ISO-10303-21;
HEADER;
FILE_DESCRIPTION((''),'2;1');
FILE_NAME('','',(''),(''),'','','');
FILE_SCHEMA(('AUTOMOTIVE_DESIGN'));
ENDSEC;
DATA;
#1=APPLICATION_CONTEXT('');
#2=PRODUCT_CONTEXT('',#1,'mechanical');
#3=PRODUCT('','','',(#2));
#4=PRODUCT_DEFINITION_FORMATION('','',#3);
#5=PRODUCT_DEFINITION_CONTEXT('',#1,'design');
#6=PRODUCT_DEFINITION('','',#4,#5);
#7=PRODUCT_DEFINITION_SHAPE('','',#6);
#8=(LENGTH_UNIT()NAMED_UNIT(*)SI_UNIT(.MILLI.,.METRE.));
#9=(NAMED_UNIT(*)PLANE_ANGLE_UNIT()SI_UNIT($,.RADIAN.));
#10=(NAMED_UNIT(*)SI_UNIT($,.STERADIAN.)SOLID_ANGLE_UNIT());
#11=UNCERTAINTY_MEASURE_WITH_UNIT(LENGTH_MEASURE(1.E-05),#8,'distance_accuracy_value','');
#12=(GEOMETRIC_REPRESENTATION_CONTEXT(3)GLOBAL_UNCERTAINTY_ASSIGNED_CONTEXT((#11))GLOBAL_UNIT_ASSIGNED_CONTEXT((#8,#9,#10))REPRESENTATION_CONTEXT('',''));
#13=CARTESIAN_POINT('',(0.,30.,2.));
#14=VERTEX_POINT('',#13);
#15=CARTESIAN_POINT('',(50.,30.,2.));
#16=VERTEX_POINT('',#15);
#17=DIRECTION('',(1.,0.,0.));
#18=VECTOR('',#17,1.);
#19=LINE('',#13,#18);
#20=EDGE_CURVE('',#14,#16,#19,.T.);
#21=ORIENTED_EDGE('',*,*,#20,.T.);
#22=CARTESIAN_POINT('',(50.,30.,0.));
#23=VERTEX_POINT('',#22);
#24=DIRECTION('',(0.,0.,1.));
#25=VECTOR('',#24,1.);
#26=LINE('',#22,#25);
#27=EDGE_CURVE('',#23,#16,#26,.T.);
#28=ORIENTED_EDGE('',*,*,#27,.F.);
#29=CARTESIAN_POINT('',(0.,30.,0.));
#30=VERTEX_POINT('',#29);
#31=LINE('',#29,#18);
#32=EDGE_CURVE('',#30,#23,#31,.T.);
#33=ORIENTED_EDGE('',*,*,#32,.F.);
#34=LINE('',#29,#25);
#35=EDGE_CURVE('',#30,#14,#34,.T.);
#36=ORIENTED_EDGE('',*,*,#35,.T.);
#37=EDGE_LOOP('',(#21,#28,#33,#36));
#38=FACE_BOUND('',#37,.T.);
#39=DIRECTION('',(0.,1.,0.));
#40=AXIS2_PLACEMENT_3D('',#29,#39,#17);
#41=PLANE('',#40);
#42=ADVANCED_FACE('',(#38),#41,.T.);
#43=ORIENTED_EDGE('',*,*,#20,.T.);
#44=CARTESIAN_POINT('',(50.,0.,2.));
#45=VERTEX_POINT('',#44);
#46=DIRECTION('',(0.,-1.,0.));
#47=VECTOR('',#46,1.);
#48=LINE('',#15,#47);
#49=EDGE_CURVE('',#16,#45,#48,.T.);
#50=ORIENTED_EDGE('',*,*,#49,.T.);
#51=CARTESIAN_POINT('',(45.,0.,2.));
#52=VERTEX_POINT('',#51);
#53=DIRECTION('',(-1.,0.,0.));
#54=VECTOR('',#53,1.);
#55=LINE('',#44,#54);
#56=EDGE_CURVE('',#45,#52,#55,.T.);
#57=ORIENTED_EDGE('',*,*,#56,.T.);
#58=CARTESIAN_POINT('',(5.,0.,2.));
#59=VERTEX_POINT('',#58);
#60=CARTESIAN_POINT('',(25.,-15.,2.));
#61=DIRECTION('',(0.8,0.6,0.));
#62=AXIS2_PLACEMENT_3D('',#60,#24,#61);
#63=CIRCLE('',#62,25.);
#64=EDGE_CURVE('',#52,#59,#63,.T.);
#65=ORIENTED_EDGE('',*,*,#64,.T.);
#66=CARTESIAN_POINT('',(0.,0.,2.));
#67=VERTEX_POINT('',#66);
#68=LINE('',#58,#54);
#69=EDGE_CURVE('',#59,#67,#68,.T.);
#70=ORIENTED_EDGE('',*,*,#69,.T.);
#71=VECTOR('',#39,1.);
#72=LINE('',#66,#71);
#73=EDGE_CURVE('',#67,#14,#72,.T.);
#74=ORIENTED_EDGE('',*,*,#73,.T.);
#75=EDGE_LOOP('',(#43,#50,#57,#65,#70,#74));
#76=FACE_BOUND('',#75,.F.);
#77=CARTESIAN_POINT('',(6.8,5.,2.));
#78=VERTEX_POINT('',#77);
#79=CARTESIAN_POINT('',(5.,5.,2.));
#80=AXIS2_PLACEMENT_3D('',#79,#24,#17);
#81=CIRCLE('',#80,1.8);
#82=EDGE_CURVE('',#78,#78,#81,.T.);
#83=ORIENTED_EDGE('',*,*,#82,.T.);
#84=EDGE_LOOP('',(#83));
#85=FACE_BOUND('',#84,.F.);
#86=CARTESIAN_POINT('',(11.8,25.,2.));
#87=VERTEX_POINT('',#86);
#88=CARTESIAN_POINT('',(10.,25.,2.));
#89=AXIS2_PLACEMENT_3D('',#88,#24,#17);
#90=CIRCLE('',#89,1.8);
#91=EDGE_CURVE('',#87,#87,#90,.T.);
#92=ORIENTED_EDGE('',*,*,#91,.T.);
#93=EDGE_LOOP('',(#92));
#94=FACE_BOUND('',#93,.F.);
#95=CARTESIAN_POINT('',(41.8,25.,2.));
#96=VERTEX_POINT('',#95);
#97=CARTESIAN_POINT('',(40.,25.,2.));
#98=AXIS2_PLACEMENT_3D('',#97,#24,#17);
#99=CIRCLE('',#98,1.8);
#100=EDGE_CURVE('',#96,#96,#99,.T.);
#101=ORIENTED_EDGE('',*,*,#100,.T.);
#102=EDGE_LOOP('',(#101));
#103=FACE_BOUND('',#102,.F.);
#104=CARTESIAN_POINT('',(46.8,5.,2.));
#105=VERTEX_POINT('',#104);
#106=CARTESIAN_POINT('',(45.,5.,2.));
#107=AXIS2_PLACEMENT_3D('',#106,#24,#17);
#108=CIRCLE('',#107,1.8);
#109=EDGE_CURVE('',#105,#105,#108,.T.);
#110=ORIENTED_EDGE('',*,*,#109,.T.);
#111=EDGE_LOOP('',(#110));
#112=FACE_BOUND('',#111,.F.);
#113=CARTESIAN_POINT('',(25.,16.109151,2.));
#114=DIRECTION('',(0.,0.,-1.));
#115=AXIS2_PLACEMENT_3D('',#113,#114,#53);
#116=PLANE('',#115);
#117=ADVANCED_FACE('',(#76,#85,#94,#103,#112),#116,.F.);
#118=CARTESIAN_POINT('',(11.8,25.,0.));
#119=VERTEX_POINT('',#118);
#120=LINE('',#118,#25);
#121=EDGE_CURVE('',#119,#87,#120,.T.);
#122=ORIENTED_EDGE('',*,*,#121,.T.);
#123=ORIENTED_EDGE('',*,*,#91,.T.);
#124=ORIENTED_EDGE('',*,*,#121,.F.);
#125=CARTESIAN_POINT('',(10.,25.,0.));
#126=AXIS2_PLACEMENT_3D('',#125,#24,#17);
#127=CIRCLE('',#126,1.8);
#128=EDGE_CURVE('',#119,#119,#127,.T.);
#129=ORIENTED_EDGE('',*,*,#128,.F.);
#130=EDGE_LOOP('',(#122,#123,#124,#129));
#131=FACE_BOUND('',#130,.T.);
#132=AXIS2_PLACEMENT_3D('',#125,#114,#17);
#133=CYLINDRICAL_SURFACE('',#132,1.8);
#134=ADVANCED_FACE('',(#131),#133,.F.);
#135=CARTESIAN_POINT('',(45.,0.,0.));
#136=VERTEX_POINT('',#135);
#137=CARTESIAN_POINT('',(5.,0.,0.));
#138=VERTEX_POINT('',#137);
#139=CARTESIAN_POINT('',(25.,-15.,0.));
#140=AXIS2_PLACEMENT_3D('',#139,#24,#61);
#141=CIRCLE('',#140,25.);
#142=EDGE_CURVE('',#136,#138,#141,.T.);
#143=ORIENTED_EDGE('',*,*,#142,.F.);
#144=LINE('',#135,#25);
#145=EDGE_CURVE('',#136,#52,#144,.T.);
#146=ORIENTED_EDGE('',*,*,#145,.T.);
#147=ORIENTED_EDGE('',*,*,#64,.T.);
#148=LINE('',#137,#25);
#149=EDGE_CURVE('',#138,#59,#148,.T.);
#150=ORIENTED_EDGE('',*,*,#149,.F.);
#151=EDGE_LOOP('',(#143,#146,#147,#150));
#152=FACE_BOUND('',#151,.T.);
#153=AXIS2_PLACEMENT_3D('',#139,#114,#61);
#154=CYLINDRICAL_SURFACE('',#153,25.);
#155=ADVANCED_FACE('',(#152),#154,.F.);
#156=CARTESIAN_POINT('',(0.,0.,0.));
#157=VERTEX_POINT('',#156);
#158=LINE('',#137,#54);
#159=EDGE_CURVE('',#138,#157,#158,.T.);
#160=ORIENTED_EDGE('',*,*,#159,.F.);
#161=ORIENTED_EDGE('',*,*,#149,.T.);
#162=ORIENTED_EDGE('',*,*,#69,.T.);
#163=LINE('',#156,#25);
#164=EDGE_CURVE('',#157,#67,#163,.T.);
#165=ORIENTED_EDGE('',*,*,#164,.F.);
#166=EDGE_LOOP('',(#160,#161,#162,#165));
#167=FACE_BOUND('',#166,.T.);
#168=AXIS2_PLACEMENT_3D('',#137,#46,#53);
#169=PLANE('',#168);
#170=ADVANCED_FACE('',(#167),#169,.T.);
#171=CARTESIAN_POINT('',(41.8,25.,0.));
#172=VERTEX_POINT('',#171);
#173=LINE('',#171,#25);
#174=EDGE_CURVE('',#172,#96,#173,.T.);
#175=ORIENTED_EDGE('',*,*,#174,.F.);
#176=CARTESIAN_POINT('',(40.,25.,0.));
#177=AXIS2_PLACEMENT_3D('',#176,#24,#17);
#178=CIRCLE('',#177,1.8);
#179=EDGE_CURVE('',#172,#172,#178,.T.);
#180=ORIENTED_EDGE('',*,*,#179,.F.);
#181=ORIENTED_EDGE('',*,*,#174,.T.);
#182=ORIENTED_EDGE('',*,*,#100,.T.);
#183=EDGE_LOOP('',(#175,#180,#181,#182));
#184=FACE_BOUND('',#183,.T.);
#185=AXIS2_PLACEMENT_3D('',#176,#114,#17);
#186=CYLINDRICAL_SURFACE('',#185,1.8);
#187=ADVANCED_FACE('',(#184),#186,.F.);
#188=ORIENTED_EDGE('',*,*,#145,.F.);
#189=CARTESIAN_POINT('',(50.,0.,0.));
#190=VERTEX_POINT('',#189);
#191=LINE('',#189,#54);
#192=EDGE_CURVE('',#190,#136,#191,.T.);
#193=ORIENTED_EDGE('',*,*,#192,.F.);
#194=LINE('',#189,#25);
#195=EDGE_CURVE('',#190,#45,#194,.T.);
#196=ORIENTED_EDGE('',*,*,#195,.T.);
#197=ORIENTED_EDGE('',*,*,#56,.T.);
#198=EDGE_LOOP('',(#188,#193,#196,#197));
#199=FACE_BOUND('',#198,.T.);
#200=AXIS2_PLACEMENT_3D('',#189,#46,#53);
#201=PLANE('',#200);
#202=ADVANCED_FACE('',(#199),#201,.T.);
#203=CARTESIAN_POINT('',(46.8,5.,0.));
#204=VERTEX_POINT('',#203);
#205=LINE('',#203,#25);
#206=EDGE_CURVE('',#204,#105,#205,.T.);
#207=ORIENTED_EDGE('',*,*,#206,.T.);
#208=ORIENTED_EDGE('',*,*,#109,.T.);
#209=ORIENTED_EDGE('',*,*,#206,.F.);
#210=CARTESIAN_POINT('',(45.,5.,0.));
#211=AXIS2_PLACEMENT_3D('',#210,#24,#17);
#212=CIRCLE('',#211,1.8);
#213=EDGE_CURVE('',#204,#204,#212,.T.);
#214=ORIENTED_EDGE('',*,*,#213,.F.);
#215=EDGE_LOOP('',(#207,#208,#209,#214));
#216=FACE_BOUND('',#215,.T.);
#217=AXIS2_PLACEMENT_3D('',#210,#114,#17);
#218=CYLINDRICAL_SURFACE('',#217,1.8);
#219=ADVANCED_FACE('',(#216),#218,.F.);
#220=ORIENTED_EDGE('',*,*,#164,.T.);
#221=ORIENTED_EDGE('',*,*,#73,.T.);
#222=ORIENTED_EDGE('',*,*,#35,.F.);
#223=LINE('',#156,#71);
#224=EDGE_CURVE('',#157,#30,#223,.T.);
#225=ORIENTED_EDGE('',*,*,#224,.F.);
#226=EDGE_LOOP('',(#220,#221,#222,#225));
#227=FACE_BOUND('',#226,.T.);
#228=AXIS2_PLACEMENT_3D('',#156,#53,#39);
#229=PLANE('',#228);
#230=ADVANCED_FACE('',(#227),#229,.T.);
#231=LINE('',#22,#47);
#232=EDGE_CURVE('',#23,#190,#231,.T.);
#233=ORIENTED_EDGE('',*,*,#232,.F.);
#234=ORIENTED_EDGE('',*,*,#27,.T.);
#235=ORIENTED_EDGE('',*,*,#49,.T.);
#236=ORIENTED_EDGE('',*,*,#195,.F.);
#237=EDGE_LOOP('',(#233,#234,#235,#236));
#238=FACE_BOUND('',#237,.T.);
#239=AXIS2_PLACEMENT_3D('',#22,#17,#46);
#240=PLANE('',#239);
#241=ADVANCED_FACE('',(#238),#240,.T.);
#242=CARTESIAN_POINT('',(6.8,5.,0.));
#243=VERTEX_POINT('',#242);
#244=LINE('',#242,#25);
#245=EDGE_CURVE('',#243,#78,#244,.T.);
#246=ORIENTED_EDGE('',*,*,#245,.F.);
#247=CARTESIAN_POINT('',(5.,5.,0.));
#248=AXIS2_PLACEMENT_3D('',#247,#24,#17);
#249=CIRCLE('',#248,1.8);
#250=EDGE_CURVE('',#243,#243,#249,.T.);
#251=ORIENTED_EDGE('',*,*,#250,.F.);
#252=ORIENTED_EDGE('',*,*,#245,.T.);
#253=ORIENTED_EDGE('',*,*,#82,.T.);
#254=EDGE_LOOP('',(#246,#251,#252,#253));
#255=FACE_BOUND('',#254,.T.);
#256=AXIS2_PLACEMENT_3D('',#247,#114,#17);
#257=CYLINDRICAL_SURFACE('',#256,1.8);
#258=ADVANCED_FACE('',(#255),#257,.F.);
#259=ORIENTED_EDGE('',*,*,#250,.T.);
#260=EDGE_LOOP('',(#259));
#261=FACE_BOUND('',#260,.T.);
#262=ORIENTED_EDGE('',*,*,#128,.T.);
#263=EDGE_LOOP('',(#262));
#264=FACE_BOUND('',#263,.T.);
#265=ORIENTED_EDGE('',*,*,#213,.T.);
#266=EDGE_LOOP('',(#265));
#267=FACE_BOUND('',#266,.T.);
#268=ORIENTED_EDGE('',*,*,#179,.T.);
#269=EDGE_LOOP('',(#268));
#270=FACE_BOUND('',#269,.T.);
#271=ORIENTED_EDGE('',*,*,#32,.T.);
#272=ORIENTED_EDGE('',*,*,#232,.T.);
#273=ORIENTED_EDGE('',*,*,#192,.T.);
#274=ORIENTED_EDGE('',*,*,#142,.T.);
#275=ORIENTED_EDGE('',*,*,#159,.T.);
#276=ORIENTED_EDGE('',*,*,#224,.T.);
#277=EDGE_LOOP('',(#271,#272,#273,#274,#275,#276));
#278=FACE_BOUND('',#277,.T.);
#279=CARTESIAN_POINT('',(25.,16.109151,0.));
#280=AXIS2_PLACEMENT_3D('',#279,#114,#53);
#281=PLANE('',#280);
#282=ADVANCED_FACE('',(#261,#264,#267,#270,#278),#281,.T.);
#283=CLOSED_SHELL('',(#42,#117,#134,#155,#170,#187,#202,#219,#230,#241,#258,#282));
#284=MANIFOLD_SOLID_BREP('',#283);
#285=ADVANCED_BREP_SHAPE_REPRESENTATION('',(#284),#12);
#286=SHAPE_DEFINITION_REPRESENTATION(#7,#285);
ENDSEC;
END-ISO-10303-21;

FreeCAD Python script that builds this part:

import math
import FreeCAD as App
import Part
import Sketcher

V = App.Vector

doc = App.newDocument("Part")
params = doc.addObject("Spreadsheet::Sheet", "Params")
for row, (alias, value) in enumerate([
    ("sketch1_radius", "25 mm"),
    ("sketch1_diameter", "3.6 mm"),
    ("sketch1_width", "5 mm"),
    ("sketch1_width2", "50 mm"),
    ("sketch1_height", "30 mm"),
    ("pad1_length", "2 mm"),
], start=1):
    params.set(f"A{row}", alias)
    params.set(f"B{row}", "=" + value)
    params.setAlias(f"B{row}", alias)

body = doc.addObject("PartDesign::Body", "Body")

# Sketch on XY plane
sketch1 = doc.addObject("Sketcher::SketchObject", "Sketch")
body.addObject(sketch1)
sketch1.AttachmentSupport = (doc.XY_Plane, [""])
sketch1.MapMode = "FlatFace"
sketch1.addGeometry([
    Part.LineSegment(V(0, 0, 0), V(5, 0, 0)),  # 0
    Part.ArcOfCircle(Part.Circle(V(25, -15, 0), V(0, 0, 1), 25), math.radians(37), math.radians(143)),  # 1
    Part.LineSegment(V(45, 0, 0), V(50, 0, 0)),  # 2
    Part.LineSegment(V(50, 0, 0), V(50, 30, 0)),  # 3
    Part.LineSegment(V(50, 30, 0), V(0, 30, 0)),  # 4
    Part.LineSegment(V(0, 30, 0), V(0, 0, 0)),  # 5
    Part.Circle(V(45, 5, 0), V(0, 0, 1), 1.8),  # 6
    Part.Circle(V(5, 5, 0), V(0, 0, 1), 1.8),  # 7
    Part.Circle(V(40, 25, 0), V(0, 0, 1), 1.8),  # 8
    Part.Circle(V(10, 25, 0), V(0, 0, 1), 1.8),  # 9
], False)
sketch1.addConstraint([
    Sketcher.Constraint("Coincident", 0, 2, 1, 2),
    Sketcher.Constraint("Coincident", 1, 1, 2, 1),
    Sketcher.Constraint("Coincident", 2, 2, 3, 1),
    Sketcher.Constraint("Coincident", 3, 2, 4, 1),
    Sketcher.Constraint("Coincident", 4, 2, 5, 1),
    Sketcher.Constraint("Coincident", 5, 2, 0, 1),
    Sketcher.Constraint("Horizontal", 0),
    Sketcher.Constraint("Horizontal", 2),
    Sketcher.Constraint("Vertical", 3),
    Sketcher.Constraint("Horizontal", 4),
    Sketcher.Constraint("Vertical", 5),
    Sketcher.Constraint("Coincident", 5, 2, -1, 1),
    Sketcher.Constraint("Equal", 6, 7),
    Sketcher.Constraint("Equal", 7, 8),
    Sketcher.Constraint("Equal", 8, 9),
    Sketcher.Constraint("PointOnObject", 1, 1, -1),
    Sketcher.Constraint("Horizontal", 6, 3, 7, 3),
    Sketcher.Constraint("Horizontal", 8, 3, 9, 3),
    Sketcher.Constraint("Vertical", 7, 3, 0, 2),
    Sketcher.Constraint("Vertical", 6, 3, 1, 1),
    Sketcher.Constraint("Equal", 0, 2),
    Sketcher.Constraint("Radius", 1, 25.0),
    Sketcher.Constraint("Diameter", 6, 3.6),
    Sketcher.Constraint("DistanceX", 0, 1, 0, 2, 5.0),
    Sketcher.Constraint("DistanceX", 4, 2, 4, 1, 50.0),
    Sketcher.Constraint("DistanceY", 3, 1, 3, 2, 30.0),
    Sketcher.Constraint("DistanceY", -1, 1, 6, 3, 5.0),
    Sketcher.Constraint("DistanceX", -1, 1, 8, 3, 40.0),
    Sketcher.Constraint("DistanceY", -1, 1, 8, 3, 25.0),
    Sketcher.Constraint("DistanceX", -1, 1, 9, 3, 10.0),
])
sketch1.setExpression("Constraints[21]", "Params.sketch1_radius")
sketch1.setExpression("Constraints[22]", "Params.sketch1_diameter")
sketch1.setExpression("Constraints[23]", "Params.sketch1_width")
sketch1.setExpression("Constraints[24]", "Params.sketch1_width2")
sketch1.setExpression("Constraints[25]", "Params.sketch1_height")
pad1 = doc.addObject("PartDesign::Pad", "Pad")
body.addObject(pad1)
pad1.Profile = sketch1
pad1.setExpression("Length", "Params.pad1_length")

doc.recompute()
